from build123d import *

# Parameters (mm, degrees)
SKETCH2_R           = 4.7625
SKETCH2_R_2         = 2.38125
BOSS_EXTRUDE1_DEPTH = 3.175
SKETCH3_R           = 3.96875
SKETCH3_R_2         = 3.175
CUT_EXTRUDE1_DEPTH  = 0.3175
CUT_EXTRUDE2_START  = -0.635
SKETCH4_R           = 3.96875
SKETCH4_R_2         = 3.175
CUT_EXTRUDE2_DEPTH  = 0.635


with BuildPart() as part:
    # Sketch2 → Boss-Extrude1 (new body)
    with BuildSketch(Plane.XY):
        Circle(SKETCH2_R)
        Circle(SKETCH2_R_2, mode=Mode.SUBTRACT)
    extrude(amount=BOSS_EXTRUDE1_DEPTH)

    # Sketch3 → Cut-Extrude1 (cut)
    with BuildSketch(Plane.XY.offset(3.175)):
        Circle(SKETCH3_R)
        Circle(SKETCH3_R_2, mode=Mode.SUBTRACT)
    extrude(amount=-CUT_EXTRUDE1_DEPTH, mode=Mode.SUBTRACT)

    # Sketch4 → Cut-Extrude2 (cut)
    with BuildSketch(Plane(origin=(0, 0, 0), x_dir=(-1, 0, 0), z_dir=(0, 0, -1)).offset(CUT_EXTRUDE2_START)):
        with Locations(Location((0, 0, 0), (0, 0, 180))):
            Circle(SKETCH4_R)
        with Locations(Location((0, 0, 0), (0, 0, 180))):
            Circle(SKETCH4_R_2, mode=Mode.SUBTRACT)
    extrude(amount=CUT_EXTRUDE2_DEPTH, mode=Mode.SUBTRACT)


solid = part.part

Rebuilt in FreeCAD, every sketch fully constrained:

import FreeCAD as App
import Part
import Sketcher
Q = App.Units.Quantity

doc = App.newDocument("Part")
body = doc.addObject("PartDesign::Body", "Body")

# Sketch on XY plane
sketch1 = doc.addObject("Sketcher::SketchObject", "Sketch")
body.addObject(sketch1)
sketch1.AttachmentSupport = (doc.XY_Plane, [""])
sketch1.MapMode = "FlatFace"
sketch1.addGeometry([
    Part.Circle(App.Vector(0, 0, 0), App.Vector(0, 0, 1), 4.8),
    Part.Circle(App.Vector(0, 0, 0), App.Vector(0, 0, 1), 2.4),
], False)
sketch1.addConstraint([
    Sketcher.Constraint("Coincident", 0, 3, -1, 1),
    Sketcher.Constraint("Coincident", 1, 3, -1, 1),
    Sketcher.Constraint("Diameter", 0, Q("0.375 in")),
    Sketcher.Constraint("Diameter", 1, Q("0.1875 in")),
])
pad1 = doc.addObject("PartDesign::Pad", "Pad")
body.addObject(pad1)
pad1.Profile = sketch1
pad1.Length = Q("0.125 in")

# Sketch on XY plane
sketch2 = doc.addObject("Sketcher::SketchObject", "Sketch001")
body.addObject(sketch2)
sketch2.AttachmentSupport = (doc.XY_Plane, [""])
sketch2.MapMode = "FlatFace"
sketch2.AttachmentOffset = App.Placement(App.Vector(0, 0, 0.125 * 25.4), App.Rotation())
sketch2.addGeometry([
    Part.Circle(App.Vector(0, 0, 0), App.Vector(0, 0, 1), 4),
    Part.Circle(App.Vector(0, 0, 0), App.Vector(0, 0, 1), 3.2),
], False)
sketch2.addConstraint([
    Sketcher.Constraint("Coincident", 0, 3, -1, 1),
    Sketcher.Constraint("Coincident", 1, 3, -1, 1),
    Sketcher.Constraint("Diameter", 1, Q("0.25 in")),
    Sketcher.Constraint("Diameter", 0, Q("0.3125 in")),
])
pocket1 = doc.addObject("PartDesign::Pocket", "Pocket")
body.addObject(pocket1)
pocket1.Profile = sketch2
pocket1.Length = Q("0.0125 in")

# Sketch on XY plane
sketch3 = doc.addObject("Sketcher::SketchObject", "Sketch002")
body.addObject(sketch3)
sketch3.AttachmentSupport = (doc.XY_Plane, [""])
sketch3.MapMode = "FlatFace"
sketch3.AttachmentOffset = App.Placement(App.Vector(0, 0, 0.025 * 25.4), App.Rotation())
sketch3.addGeometry([
    Part.Circle(App.Vector(0, 0, 0), App.Vector(0, 0, 1), 4),
    Part.Circle(App.Vector(0, 0, 0), App.Vector(0, 0, 1), 3.2),
], False)
sketch3.addConstraint([
    Sketcher.Constraint("Coincident", 0, 3, -1, 1),
    Sketcher.Constraint("Coincident", 1, 3, -1, 1),
    Sketcher.Constraint("Diameter", 1, Q("0.25 in")),
    Sketcher.Constraint("Diameter", 0, Q("0.3125 in")),
])
pocket2 = doc.addObject("PartDesign::Pocket", "Pocket001")
body.addObject(pocket2)
pocket2.Profile = sketch3
pocket2.Length = Q("0.025 in")

doc.recompute()
